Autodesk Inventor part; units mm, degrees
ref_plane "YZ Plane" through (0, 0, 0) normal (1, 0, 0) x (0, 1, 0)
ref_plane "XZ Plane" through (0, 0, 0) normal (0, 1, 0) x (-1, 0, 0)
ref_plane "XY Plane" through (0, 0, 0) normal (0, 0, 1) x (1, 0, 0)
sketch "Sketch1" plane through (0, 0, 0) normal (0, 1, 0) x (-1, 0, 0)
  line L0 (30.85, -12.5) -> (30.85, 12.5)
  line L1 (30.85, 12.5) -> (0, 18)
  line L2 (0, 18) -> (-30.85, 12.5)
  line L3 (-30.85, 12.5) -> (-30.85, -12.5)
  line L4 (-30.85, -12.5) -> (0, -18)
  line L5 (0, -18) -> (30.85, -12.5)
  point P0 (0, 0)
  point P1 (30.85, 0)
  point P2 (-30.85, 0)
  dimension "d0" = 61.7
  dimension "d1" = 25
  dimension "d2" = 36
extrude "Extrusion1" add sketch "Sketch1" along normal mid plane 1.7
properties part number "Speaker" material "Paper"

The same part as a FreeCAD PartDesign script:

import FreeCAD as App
import Part
import Sketcher
from FreeCAD import Vector
Q = App.Units.Quantity


def add_polygon(sketch, points):
    """Adds a closed chain of lines whose ends are joined by coincident constraints."""
    first, n = sketch.GeometryCount, len(points)
    for a, b in zip(points, points[1:] + points[:1]):
        sketch.addGeometry(Part.LineSegment(App.Vector(*a, 0), App.Vector(*b, 0)), False)
    for i in range(n):
        sketch.addConstraint(Sketcher.Constraint("Coincident", first + i, 2, first + (i + 1) % n, 1))

doc = App.newDocument("Part")
body = doc.addObject("PartDesign::Body", "Body")

sketch1 = body.newObject("Sketcher::SketchObject", "Sketch")
sketch1.AttachmentSupport = (doc.getObject("XZ_Plane"), [""])
sketch1.MapMode = "FlatFace"
add_polygon(sketch1, [(0, -18), (-31, -12), (-31, 12), (0, 18), (31, 12), (31, -12)])
sketch1.addConstraint(Sketcher.Constraint("Vertical", 1))
sketch1.addConstraint(Sketcher.Constraint("Vertical", 4))
sketch1.addConstraint(Sketcher.Constraint("Symmetric", 0, 2, 3, 2, -1, 1))
sketch1.addConstraint(Sketcher.Constraint("Symmetric", 2, 2, 5, 2, -1, 1))
sketch1.addConstraint(Sketcher.Constraint("PointOnObject", 2, 2, -2))
sketch1.addConstraint(Sketcher.Constraint("Parallel", 2, 5))
sketch1.addConstraint(Sketcher.Constraint("Horizontal", 1, 2, 3, 2))
sketch1.addConstraint(Sketcher.Constraint("DistanceY", 1, 1, 1, 2, Q("25 mm")))
sketch1.addConstraint(Sketcher.Constraint("DistanceY", 5, 2, 2, 2, Q("36 mm")))
sketch1.addConstraint(Sketcher.Constraint("DistanceX", 1, 2, 3, 2, Q("61.7 mm")))
pad1 = body.newObject("PartDesign::Pad", "Pad")
pad1.Profile = sketch1
pad1.Length = 1.7
pad1.Midplane = True

doc.recompute()
